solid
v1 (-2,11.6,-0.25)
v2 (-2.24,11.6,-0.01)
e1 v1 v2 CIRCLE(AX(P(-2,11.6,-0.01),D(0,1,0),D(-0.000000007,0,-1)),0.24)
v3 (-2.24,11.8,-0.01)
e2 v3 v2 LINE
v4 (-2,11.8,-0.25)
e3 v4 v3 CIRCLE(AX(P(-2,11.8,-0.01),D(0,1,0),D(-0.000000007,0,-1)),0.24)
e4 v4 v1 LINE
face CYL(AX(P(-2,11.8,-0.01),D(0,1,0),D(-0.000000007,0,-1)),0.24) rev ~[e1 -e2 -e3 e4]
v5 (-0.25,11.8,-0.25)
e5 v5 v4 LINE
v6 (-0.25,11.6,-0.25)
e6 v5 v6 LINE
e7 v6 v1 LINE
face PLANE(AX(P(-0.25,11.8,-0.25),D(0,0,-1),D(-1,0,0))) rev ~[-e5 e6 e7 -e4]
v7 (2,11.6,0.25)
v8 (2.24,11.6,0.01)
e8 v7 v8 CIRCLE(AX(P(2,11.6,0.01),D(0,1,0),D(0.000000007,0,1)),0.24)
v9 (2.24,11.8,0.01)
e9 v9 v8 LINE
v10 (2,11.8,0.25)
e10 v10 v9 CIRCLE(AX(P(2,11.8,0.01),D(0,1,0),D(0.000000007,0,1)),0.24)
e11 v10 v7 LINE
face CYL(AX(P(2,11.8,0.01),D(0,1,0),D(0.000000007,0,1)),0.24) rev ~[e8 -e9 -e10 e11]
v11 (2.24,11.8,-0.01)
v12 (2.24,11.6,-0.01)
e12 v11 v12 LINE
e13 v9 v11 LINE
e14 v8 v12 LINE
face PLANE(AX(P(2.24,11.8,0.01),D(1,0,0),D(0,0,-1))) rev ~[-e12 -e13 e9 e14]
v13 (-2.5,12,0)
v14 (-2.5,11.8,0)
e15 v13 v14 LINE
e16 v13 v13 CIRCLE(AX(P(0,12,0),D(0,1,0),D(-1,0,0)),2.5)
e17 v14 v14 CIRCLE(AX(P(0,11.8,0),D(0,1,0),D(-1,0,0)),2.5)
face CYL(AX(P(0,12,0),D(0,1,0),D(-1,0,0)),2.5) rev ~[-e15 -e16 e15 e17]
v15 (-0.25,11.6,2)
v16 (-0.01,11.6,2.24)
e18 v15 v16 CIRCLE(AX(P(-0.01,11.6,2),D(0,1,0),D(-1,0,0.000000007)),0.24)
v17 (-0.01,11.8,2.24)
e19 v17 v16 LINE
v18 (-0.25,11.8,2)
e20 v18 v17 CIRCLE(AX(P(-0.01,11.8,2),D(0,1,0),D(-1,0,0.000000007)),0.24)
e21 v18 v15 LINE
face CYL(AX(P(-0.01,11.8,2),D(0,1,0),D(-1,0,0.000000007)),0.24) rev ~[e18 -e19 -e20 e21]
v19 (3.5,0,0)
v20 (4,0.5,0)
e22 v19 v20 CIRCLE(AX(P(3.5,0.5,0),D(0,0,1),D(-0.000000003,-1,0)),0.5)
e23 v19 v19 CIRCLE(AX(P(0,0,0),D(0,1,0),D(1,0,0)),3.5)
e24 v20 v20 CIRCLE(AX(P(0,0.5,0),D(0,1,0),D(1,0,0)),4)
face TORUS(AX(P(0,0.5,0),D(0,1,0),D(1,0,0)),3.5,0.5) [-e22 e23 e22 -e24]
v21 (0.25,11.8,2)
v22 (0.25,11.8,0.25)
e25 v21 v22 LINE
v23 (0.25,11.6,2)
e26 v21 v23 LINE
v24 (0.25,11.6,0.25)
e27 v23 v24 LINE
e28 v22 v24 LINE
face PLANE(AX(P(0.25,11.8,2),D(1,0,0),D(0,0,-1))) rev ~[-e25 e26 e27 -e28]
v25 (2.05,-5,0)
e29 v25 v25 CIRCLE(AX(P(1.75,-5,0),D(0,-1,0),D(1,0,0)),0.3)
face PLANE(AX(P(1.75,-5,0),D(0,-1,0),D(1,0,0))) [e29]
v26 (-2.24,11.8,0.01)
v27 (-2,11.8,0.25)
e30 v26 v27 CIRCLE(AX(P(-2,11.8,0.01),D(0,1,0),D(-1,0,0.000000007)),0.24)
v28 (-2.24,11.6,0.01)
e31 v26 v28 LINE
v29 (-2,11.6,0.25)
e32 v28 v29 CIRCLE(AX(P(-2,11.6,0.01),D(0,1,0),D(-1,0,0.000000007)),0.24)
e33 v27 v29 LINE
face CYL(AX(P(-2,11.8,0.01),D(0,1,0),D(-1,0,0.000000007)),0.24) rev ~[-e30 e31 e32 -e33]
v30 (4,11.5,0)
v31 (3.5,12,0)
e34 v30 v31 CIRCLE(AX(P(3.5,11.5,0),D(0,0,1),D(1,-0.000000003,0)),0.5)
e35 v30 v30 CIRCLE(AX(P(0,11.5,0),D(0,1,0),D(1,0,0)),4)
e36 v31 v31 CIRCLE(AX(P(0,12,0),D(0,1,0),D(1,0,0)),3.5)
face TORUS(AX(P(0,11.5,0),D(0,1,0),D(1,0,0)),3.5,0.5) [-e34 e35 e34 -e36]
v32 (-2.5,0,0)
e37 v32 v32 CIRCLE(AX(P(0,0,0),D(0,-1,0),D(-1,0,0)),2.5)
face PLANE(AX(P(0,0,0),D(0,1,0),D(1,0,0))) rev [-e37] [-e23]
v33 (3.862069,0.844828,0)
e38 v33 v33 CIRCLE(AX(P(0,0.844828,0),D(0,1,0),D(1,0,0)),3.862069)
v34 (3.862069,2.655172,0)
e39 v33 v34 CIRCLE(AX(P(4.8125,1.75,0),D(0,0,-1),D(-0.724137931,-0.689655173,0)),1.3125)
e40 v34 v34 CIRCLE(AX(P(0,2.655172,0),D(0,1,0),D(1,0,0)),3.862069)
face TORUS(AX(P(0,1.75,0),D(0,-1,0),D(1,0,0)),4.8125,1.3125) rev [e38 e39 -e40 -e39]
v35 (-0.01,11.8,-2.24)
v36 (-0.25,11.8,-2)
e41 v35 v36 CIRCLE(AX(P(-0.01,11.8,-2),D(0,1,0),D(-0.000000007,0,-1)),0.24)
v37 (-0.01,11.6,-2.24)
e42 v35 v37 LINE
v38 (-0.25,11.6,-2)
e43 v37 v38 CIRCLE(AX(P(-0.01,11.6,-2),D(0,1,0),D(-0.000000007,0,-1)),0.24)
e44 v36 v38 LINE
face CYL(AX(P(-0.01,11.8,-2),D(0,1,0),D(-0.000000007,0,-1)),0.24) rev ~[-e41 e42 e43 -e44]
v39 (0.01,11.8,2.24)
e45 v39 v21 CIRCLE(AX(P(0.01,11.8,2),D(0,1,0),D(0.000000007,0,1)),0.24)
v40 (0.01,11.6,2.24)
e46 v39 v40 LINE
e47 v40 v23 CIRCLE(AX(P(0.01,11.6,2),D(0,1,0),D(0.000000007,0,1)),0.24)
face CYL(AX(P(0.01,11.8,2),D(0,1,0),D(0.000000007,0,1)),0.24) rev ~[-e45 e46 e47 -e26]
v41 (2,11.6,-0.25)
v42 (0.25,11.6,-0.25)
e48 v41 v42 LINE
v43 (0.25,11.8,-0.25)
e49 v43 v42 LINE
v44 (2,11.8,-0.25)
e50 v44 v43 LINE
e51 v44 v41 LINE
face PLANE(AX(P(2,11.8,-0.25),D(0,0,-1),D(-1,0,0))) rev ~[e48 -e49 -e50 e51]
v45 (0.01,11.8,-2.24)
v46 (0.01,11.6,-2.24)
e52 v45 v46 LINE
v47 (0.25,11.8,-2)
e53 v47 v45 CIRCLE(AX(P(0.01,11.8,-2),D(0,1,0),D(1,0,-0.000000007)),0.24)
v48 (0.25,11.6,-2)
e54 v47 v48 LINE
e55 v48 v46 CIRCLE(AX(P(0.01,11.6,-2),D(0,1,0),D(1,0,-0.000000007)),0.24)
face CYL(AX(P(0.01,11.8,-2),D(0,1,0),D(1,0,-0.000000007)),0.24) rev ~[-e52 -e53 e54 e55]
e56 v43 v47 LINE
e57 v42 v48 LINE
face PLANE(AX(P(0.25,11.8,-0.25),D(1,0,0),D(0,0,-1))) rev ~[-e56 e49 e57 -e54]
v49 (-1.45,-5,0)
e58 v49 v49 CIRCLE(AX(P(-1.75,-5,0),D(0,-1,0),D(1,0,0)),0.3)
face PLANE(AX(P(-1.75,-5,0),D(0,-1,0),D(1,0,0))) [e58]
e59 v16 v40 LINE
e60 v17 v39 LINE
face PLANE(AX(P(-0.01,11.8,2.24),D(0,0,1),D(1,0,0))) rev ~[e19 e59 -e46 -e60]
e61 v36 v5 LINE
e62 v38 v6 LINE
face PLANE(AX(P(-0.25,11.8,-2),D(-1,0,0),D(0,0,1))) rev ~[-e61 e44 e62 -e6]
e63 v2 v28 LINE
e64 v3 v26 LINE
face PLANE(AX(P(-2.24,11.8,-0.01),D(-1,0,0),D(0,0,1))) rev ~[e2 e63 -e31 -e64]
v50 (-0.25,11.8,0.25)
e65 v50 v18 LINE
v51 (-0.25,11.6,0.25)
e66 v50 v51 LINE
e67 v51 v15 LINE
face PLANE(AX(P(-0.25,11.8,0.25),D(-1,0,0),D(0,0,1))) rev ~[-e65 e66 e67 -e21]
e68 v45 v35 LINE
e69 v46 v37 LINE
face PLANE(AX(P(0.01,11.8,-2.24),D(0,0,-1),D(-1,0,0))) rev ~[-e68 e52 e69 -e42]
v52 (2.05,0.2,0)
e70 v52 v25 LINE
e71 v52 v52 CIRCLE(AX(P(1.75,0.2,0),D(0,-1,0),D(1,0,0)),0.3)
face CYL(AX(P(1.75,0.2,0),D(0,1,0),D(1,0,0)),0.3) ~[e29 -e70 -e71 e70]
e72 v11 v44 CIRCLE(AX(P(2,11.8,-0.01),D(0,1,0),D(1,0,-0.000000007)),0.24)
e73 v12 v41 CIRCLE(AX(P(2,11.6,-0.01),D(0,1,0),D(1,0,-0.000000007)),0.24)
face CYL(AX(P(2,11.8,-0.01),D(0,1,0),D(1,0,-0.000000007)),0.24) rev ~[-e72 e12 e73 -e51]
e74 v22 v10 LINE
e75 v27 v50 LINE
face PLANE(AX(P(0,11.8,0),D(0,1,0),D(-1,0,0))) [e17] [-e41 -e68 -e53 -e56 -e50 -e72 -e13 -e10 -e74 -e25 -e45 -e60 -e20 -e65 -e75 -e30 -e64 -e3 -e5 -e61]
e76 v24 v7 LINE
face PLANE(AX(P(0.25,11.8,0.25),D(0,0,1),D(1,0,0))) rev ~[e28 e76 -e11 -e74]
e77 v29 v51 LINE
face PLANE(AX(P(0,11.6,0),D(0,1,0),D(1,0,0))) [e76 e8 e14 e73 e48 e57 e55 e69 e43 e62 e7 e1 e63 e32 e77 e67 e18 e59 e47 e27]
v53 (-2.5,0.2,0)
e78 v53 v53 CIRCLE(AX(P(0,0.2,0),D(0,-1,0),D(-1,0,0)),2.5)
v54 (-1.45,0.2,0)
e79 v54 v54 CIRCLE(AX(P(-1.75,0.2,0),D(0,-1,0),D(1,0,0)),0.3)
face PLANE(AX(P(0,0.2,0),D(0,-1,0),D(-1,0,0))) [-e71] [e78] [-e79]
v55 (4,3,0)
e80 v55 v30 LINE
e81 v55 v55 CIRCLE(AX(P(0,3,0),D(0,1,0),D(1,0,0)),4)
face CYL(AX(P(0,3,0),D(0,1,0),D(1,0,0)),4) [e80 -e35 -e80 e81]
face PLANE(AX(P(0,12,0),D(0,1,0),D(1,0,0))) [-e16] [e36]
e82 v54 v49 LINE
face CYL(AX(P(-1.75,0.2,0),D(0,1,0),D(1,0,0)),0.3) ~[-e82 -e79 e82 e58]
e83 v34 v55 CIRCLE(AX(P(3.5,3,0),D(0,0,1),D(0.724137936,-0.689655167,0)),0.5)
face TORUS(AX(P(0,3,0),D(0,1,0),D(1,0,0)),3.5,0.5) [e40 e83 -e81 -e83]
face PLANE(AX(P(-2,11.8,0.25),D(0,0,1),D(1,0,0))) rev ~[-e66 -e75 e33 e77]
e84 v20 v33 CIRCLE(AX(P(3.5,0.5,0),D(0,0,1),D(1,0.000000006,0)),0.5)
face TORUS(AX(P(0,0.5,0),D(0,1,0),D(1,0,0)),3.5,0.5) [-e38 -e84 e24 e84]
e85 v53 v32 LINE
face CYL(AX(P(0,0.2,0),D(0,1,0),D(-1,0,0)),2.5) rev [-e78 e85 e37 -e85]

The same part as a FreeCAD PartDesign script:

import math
import FreeCAD as App
import Part
import Sketcher

V = App.Vector
Q = App.Units.Quantity

doc = App.newDocument("Part")
body = doc.addObject("PartDesign::Body", "Body")

# Sketch on XY plane
sketch1 = doc.addObject("Sketcher::SketchObject", "Sketch")
body.addObject(sketch1)
sketch1.AttachmentSupport = (doc.XY_Plane, [""])
sketch1.MapMode = "FlatFace"
sketch1.addGeometry([
    Part.LineSegment(V(0, 0, 0), V(3.5, 0, 0)),  # 0
    Part.ArcOfCircle(Part.Circle(V(3.5, 0.5, 0), V(0, 0, 1), 0.5), math.radians(-90), math.radians(0)),  # 1
    Part.ArcOfCircle(Part.Circle(V(3.5, 0.5, 0), V(0, 0, 1), 0.5), math.radians(0), math.radians(43.602819)),  # 2
    Part.ArcOfCircle(Part.Circle(V(4.8125, 1.75, 0), V(0, 0, 1), 1.3125), math.radians(136.397181), math.radians(223.602819)),  # 3
    Part.ArcOfCircle(Part.Circle(V(3.5, 3, 0), V(0, 0, 1), 0.5), math.radians(-43.602819), math.radians(0)),  # 4
    Part.LineSegment(V(4, 3, 0), V(4, 11.5, 0)),  # 5
    Part.ArcOfCircle(Part.Circle(V(3.5, 11.5, 0), V(0, 0, 1), 0.5), math.radians(0), math.radians(90)),  # 6
    Part.LineSegment(V(3.5, 12, 0), V(0, 12, 0)),  # 7
    Part.LineSegment(V(0, 12, 0), V(0, 0, 0)),  # 8
], False)
sketch1.addConstraint([
    Sketcher.Constraint("Tangent", 0, 2, 1, 1),
    Sketcher.Constraint("Tangent", 1, 2, 2, 1),
    Sketcher.Constraint("Tangent", 2, 2, 3, 2),
    Sketcher.Constraint("Tangent", 3, 1, 4, 1),
    Sketcher.Constraint("Tangent", 4, 2, 5, 1),
    Sketcher.Constraint("Tangent", 5, 2, 6, 1),
    Sketcher.Constraint("Tangent", 6, 2, 7, 1),
    Sketcher.Constraint("Coincident", 7, 2, 8, 1),
    Sketcher.Constraint("Coincident", 8, 2, 0, 1),
    Sketcher.Constraint("Horizontal", 0),
    Sketcher.Constraint("Vertical", 5),
    Sketcher.Constraint("Horizontal", 7),
    Sketcher.Constraint("Vertical", 8),
    Sketcher.Constraint("Coincident", 8, 2, -1, 1),
    Sketcher.Constraint("Equal", 1, 2),
    Sketcher.Constraint("Equal", 2, 4),
    Sketcher.Constraint("Equal", 4, 6),
    Sketcher.Constraint("Horizontal", 2, 3, 1, 2),
    Sketcher.Constraint("Vertical", 2, 3, 4, 3),
    Sketcher.Constraint("Radius", 1, Q("0.5 mm")),
    Sketcher.Constraint("DistanceY", 8, 2, 8, 1, Q("12 mm")),
    Sketcher.Constraint("DistanceX", 0, 1, 0, 2, Q("3.5 mm")),
    Sketcher.Constraint("DistanceY", 5, 1, 5, 2, Q("8.5 mm")),
    Sketcher.Constraint("Radius", 3, Q("1.3125 mm")),
])
revolution = doc.addObject("PartDesign::Revolution", "Revolution")
body.addObject(revolution)
revolution.Profile = sketch1
revolution.ReferenceAxis = (sketch1, ["V_Axis"])
revolution.Angle = 360

# Sketch on XZ plane
sketch2 = doc.addObject("Sketcher::SketchObject", "Sketch001")
body.addObject(sketch2)
sketch2.AttachmentSupport = (doc.XZ_Plane, [""])
sketch2.MapMode = "FlatFace"
sketch2.AttachmentOffset = App.Placement(V(0, 0, -12), App.Rotation())
sketch2.addGeometry(Part.Circle(V(0, 0, 0), V(0, 0, 1), 2.5), False)
sketch2.addConstraint([
    Sketcher.Constraint("Coincident", 0, 3, -1, 1),
    Sketcher.Constraint("Diameter", 0, Q("5 mm")),
])
pocket1 = doc.addObject("PartDesign::Pocket", "Pocket")
body.addObject(pocket1)
pocket1.Profile = sketch2
pocket1.Length = 0.2
pocket1.Reversed = True

# Sketch on XZ plane
sketch3 = doc.addObject("Sketcher::SketchObject", "Sketch002")
body.addObject(sketch3)
sketch3.AttachmentSupport = (doc.XZ_Plane, [""])
sketch3.MapMode = "FlatFace"
sketch3.AttachmentOffset = App.Placement(V(0, 0, -11.8), App.Rotation())
sketch3.addGeometry([
    Part.LineSegment(V(-0.25, 0.25, 0), V(-0.25, 2, 0)),  # 0
    Part.ArcOfCircle(Part.Circle(V(-0.01, 2, 0), V(0, 0, 1), 0.24), math.radians(90), math.radians(180)),  # 1
    Part.LineSegment(V(-0.01, 2.24, 0), V(0.01, 2.24, 0)),  # 2
    Part.ArcOfCircle(Part.Circle(V(0.01, 2, 0), V(0, 0, 1), 0.24), math.radians(0), math.radians(90)),  # 3
    Part.LineSegment(V(0.25, 2, 0), V(0.25, 0.25, 0)),  # 4
    Part.LineSegment(V(0.25, 0.25, 0), V(2, 0.25, 0)),  # 5
    Part.ArcOfCircle(Part.Circle(V(2, 0.01, 0), V(0, 0, 1), 0.24), math.radians(0), math.radians(90)),  # 6
    Part.LineSegment(V(2.24, 0.01, 0), V(2.24, -0.01, 0)),  # 7
    Part.ArcOfCircle(Part.Circle(V(2, -0.01, 0), V(0, 0, 1), 0.24), math.radians(-90), math.radians(0)),  # 8
    Part.LineSegment(V(2, -0.25, 0), V(0.25, -0.25, 0)),  # 9
    Part.LineSegment(V(0.25, -0.25, 0), V(0.25, -2, 0)),  # 10
    Part.ArcOfCircle(Part.Circle(V(0.01, -2, 0), V(0, 0, 1), 0.24), math.radians(-90), math.radians(0)),  # 11
    Part.LineSegment(V(0.01, -2.24, 0), V(-0.01, -2.24, 0)),  # 12
    Part.ArcOfCircle(Part.Circle(V(-0.01, -2, 0), V(0, 0, 1), 0.24), math.radians(-180), math.radians(-90)),  # 13
    Part.LineSegment(V(-0.25, -2, 0), V(-0.25, -0.25, 0)),  # 14
    Part.LineSegment(V(-0.25, -0.25, 0), V(-2, -0.25, 0)),  # 15
    Part.ArcOfCircle(Part.Circle(V(-2, -0.01, 0), V(0, 0, 1), 0.24), math.radians(-180), math.radians(-90)),  # 16
    Part.LineSegment(V(-2.24, -0.01, 0), V(-2.24, 0.01, 0)),  # 17
    Part.ArcOfCircle(Part.Circle(V(-2, 0.01, 0), V(0, 0, 1), 0.24), math.radians(90), math.radians(180)),  # 18
    Part.LineSegment(V(-2, 0.25, 0), V(-0.25, 0.25, 0)),  # 19
], False)
sketch3.addConstraint([
    Sketcher.Constraint("Tangent", 0, 2, 1, 2),
    Sketcher.Constraint("Tangent", 1, 1, 2, 1),
    Sketcher.Constraint("Tangent", 2, 2, 3, 2),
    Sketcher.Constraint("Tangent", 3, 1, 4, 1),
    Sketcher.Constraint("Coincident", 4, 2, 5, 1),
    Sketcher.Constraint("Tangent", 5, 2, 6, 2),
    Sketcher.Constraint("Tangent", 6, 1, 7, 1),
    Sketcher.Constraint("Tangent", 7, 2, 8, 2),
    Sketcher.Constraint("Tangent", 8, 1, 9, 1),
    Sketcher.Constraint("Coincident", 9, 2, 10, 1),
    Sketcher.Constraint("Tangent", 10, 2, 11, 2),
    Sketcher.Constraint("Tangent", 11, 1, 12, 1),
    Sketcher.Constraint("Tangent", 12, 2, 13, 2),
    Sketcher.Constraint("Tangent", 13, 1, 14, 1),
    Sketcher.Constraint("Coincident", 14, 2, 15, 1),
    Sketcher.Constraint("Tangent", 15, 2, 16, 2),
    Sketcher.Constraint("Tangent", 16, 1, 17, 1),
    Sketcher.Constraint("Tangent", 17, 2, 18, 2),
    Sketcher.Constraint("Tangent", 18, 1, 19, 1),
    Sketcher.Constraint("Coincident", 19, 2, 0, 1),
    Sketcher.Constraint("Vertical", 0),
    Sketcher.Constraint("Horizontal", 2),
    Sketcher.Constraint("Vertical", 4),
    Sketcher.Constraint("Horizontal", 5),
    Sketcher.Constraint("Vertical", 7),
    Sketcher.Constraint("Horizontal", 9),
    Sketcher.Constraint("Vertical", 10),
    Sketcher.Constraint("Horizontal", 12),
    Sketcher.Constraint("Vertical", 14),
    Sketcher.Constraint("Horizontal", 15),
    Sketcher.Constraint("Vertical", 17),
    Sketcher.Constraint("Horizontal", 19),
    Sketcher.Constraint("Equal", 1, 3),
    Sketcher.Constraint("Equal", 3, 6),
    Sketcher.Constraint("Equal", 6, 8),
    Sketcher.Constraint("Equal", 8, 11),
    Sketcher.Constraint("Equal", 11, 13),
    Sketcher.Constraint("Equal", 13, 16),
    Sketcher.Constraint("Equal", 16, 18),
    Sketcher.Constraint("Symmetric", 1, 3, 11, 3, -1, 1),
    Sketcher.Constraint("Symmetric", 6, 3, 16, 3, -1, 1),
    Sketcher.Constraint("Symmetric", 9, 2, 14, 2, -2),
    Sketcher.Constraint("Symmetric", 4, 2, 19, 2, -2),
    Sketcher.Constraint("Equal", 19, 0),
    Sketcher.Constraint("Equal", 12, 7),
    Sketcher.Constraint("Radius", 1, Q("0.24 mm")),
    Sketcher.Constraint("DistanceY", -1, 1, 1, 3, Q("2 mm")),
    Sketcher.Constraint("DistanceX", 2, 1, 2, 2, Q("0.02 mm")),
])
pocket2 = doc.addObject("PartDesign::Pocket", "Pocket001")
body.addObject(pocket2)
pocket2.Profile = sketch3
pocket2.Length = 0.2
pocket2.Reversed = True

# Sketch on XZ plane
sketch4 = doc.addObject("Sketcher::SketchObject", "Sketch003")
body.addObject(sketch4)
sketch4.AttachmentSupport = (doc.XZ_Plane, [""])
sketch4.MapMode = "FlatFace"
sketch4.AttachmentOffset = App.Placement(V(0, 0, -0.2), App.Rotation())
sketch4.addGeometry(Part.Circle(V(0, 0, 0), V(0, 0, 1), 2.5), False)
sketch4.addConstraint([
    Sketcher.Constraint("Coincident", 0, 3, -1, 1),
    Sketcher.Constraint("Diameter", 0, Q("5 mm")),
])
pocket3 = doc.addObject("PartDesign::Pocket", "Pocket002")
body.addObject(pocket3)
pocket3.Profile = sketch4
pocket3.Length = 0.2
pocket3.Reversed = True

# Sketch on XZ plane
sketch5 = doc.addObject("Sketcher::SketchObject", "Sketch004")
body.addObject(sketch5)
sketch5.AttachmentSupport = (doc.XZ_Plane, [""])
sketch5.MapMode = "FlatFace"
sketch5.AttachmentOffset = App.Placement(V(0, 0, -0.2), App.Rotation())
sketch5.addGeometry([
    Part.Circle(V(-1.75, 0, 0), V(0, 0, 1), 0.3),
    Part.Circle(V(1.75, 0, 0), V(0, 0, 1), 0.3),
], False)
sketch5.addConstraint([
    Sketcher.Constraint("Equal", 0, 1),
    Sketcher.Constraint("Symmetric", 0, 3, 1, 3, -1, 1),
    Sketcher.Constraint("PointOnObject", 0, 3, -1),
    Sketcher.Constraint("Diameter", 0, Q("0.6 mm")),
    Sketcher.Constraint("DistanceX", 0, 3, 1, 3, Q("3.5 mm")),
])
pad1 = doc.addObject("PartDesign::Pad", "Pad")
body.addObject(pad1)
pad1.Profile = sketch5
pad1.Length = 5.2

doc.recompute()
